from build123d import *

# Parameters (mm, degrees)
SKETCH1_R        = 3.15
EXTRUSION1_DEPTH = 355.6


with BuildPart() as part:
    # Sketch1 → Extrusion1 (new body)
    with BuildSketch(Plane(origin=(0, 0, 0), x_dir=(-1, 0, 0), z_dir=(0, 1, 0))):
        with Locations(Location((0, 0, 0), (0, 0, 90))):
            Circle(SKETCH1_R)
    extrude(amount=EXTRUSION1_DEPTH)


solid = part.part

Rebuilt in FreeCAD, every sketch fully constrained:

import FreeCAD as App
import Part
import Sketcher

V = App.Vector
Q = App.Units.Quantity

doc = App.newDocument("Part")
params = doc.addObject("Spreadsheet::Sheet", "Params")
for row, (alias, value) in enumerate([
    ("sketch1_diameter", "6.3 mm"),
    ("pad1_length", "355.6 mm"),
], start=1):
    params.set(f"A{row}", alias)
    params.set(f"B{row}", "=" + value)
    params.setAlias(f"B{row}", alias)

body = doc.addObject("PartDesign::Body", "Body")

sketch1 = body.newObject("Sketcher::SketchObject", "Sketch")
sketch1.AttachmentSupport = (doc.getObject("XZ_Plane"), [""])
sketch1.MapMode = "FlatFace"
sketch1.addGeometry(Part.Circle(V(0, 0, 0), V(0, 0, 1), 3.1), False)
sketch1.addConstraint(Sketcher.Constraint("Coincident", 0, 3, -1, 1))
sketch1.addConstraint(Sketcher.Constraint("Diameter", 0, Q("6.3 mm")))
sketch1.setExpression("Constraints[1]", "Params.sketch1_diameter")
pad1 = body.newObject("PartDesign::Pad", "Pad")
pad1.Profile = sketch1
pad1.setExpression("Length", "Params.pad1_length")
pad1.Reversed = True

doc.recompute()
